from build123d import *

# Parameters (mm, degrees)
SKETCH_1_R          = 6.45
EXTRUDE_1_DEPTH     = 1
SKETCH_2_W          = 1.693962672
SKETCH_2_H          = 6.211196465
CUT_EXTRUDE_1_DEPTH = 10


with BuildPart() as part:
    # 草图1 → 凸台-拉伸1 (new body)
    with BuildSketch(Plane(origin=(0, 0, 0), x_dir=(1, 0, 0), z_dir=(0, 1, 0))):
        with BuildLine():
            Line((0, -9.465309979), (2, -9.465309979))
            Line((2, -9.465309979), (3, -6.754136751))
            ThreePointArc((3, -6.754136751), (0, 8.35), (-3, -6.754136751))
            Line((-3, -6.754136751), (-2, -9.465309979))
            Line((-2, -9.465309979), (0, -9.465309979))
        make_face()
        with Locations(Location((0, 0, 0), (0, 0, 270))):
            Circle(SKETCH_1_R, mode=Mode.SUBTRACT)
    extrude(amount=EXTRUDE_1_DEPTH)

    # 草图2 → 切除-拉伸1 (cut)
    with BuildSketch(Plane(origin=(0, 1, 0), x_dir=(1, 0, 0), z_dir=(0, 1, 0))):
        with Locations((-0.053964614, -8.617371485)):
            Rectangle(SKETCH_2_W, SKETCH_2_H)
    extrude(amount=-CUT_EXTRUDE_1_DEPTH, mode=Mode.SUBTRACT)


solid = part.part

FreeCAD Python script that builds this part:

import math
import FreeCAD as App
import Part
import Sketcher
Q = App.Units.Quantity

doc = App.newDocument("Part")
body = doc.addObject("PartDesign::Body", "Body")

# Sketch on XZ plane
sketch1 = body.newObject("Sketcher::SketchObject", "Sketch")
sketch1.AttachmentSupport = (doc.getObject("XZ_Plane"), [""])
sketch1.MapMode = "FlatFace"
sketch1.addGeometry(Part.LineSegment(App.Vector(2, 9.46531, 0), App.Vector(3, 6.754137, 0)), False)
sketch1.addGeometry(Part.ArcOfCircle(Part.Circle(App.Vector(0, -0.5, 0), App.Vector(0, 0, 1), 7.85), math.radians(112.46789), math.radians(427.53211)), False)
sketch1.addGeometry(Part.LineSegment(App.Vector(-3, 6.754137, 0), App.Vector(-2, 9.46531, 0)), False)
sketch1.addGeometry(Part.LineSegment(App.Vector(-2, 9.46531, 0), App.Vector(2, 9.46531, 0)), False)
sketch1.addGeometry(Part.Circle(App.Vector(0, 0, 0), App.Vector(0, 0, 1), 6.45), False)
sketch1.addConstraint(Sketcher.Constraint("Coincident", 0, 2, 1, 2))
sketch1.addConstraint(Sketcher.Constraint("Coincident", 1, 1, 2, 1))
sketch1.addConstraint(Sketcher.Constraint("Coincident", 2, 2, 3, 1))
sketch1.addConstraint(Sketcher.Constraint("Coincident", 3, 2, 0, 1))
sketch1.addConstraint(Sketcher.Constraint("Horizontal", 3))
sketch1.addConstraint(Sketcher.Constraint("Coincident", 4, 3, -1, 1))
sketch1.addConstraint(Sketcher.Constraint("Symmetric", 0, 2, 1, 1, -2))
sketch1.addConstraint(Sketcher.Constraint("Equal", 0, 2))
sketch1.addConstraint(Sketcher.Constraint("Diameter", 4, Q("12.9 mm")))
sketch1.addConstraint(Sketcher.Constraint("DistanceX", 3, 1, 3, 2, Q("4 mm")))
sketch1.addConstraint(Sketcher.Constraint("Radius", 1, Q("7.85 mm")))
sketch1.addConstraint(Sketcher.Constraint("DistanceX", -1, 1, 0, 2, Q("3 mm")))
sketch1.addConstraint(Sketcher.Constraint("DistanceY", 1, 3, -1, 1, Q("0.5 mm")))
sketch1.addConstraint(Sketcher.Constraint("DistanceY", -1, 1, 2, 2, Q("9.46531 mm")))
pad1 = body.newObject("PartDesign::Pad", "Pad")
pad1.Profile = sketch1
pad1.Length = 1
pad1.Reversed = True

# Sketch on XZ plane
sketch2 = body.newObject("Sketcher::SketchObject", "Sketch001")
sketch2.AttachmentSupport = (doc.getObject("XZ_Plane"), [""])
sketch2.MapMode = "FlatFace"
sketch2.AttachmentOffset = App.Placement(App.Vector(0, 0, -1), App.Rotation())
sketch2.addGeometry(Part.LineSegment(App.Vector(-0.900946, 5.511773, 0), App.Vector(-0.900946, 11.72297, 0)), False)
sketch2.addGeometry(Part.LineSegment(App.Vector(-0.900946, 11.72297, 0), App.Vector(0.793017, 11.72297, 0)), False)
sketch2.addGeometry(Part.LineSegment(App.Vector(0.793017, 11.72297, 0), App.Vector(0.793017, 5.511773, 0)), False)
sketch2.addGeometry(Part.LineSegment(App.Vector(0.793017, 5.511773, 0), App.Vector(-0.900946, 5.511773, 0)), False)
sketch2.addConstraint(Sketcher.Constraint("Coincident", 0, 2, 1, 1))
sketch2.addConstraint(Sketcher.Constraint("Coincident", 1, 2, 2, 1))
sketch2.addConstraint(Sketcher.Constraint("Coincident", 2, 2, 3, 1))
sketch2.addConstraint(Sketcher.Constraint("Coincident", 3, 2, 0, 1))
sketch2.addConstraint(Sketcher.Constraint("Vertical", 0))
sketch2.addConstraint(Sketcher.Constraint("Horizontal", 1))
sketch2.addConstraint(Sketcher.Constraint("Vertical", 2))
sketch2.addConstraint(Sketcher.Constraint("Horizontal", 3))
sketch2.addConstraint(Sketcher.Constraint("DistanceX", 1, 1, 1, 2, Q("1.693963 mm")))
sketch2.addConstraint(Sketcher.Constraint("DistanceY", 0, 1, 0, 2, Q("6.211196 mm")))
sketch2.addConstraint(Sketcher.Constraint("DistanceY", -1, 1, 0, 2, Q("11.72297 mm")))
sketch2.addConstraint(Sketcher.Constraint("DistanceX", 0, 2, -1, 1, Q("0.900946 mm")))
pocket1 = body.newObject("PartDesign::Pocket", "Pocket")
pocket1.Profile = sketch2
pocket1.Length = 10
pocket1.Reversed = True

doc.recompute()
